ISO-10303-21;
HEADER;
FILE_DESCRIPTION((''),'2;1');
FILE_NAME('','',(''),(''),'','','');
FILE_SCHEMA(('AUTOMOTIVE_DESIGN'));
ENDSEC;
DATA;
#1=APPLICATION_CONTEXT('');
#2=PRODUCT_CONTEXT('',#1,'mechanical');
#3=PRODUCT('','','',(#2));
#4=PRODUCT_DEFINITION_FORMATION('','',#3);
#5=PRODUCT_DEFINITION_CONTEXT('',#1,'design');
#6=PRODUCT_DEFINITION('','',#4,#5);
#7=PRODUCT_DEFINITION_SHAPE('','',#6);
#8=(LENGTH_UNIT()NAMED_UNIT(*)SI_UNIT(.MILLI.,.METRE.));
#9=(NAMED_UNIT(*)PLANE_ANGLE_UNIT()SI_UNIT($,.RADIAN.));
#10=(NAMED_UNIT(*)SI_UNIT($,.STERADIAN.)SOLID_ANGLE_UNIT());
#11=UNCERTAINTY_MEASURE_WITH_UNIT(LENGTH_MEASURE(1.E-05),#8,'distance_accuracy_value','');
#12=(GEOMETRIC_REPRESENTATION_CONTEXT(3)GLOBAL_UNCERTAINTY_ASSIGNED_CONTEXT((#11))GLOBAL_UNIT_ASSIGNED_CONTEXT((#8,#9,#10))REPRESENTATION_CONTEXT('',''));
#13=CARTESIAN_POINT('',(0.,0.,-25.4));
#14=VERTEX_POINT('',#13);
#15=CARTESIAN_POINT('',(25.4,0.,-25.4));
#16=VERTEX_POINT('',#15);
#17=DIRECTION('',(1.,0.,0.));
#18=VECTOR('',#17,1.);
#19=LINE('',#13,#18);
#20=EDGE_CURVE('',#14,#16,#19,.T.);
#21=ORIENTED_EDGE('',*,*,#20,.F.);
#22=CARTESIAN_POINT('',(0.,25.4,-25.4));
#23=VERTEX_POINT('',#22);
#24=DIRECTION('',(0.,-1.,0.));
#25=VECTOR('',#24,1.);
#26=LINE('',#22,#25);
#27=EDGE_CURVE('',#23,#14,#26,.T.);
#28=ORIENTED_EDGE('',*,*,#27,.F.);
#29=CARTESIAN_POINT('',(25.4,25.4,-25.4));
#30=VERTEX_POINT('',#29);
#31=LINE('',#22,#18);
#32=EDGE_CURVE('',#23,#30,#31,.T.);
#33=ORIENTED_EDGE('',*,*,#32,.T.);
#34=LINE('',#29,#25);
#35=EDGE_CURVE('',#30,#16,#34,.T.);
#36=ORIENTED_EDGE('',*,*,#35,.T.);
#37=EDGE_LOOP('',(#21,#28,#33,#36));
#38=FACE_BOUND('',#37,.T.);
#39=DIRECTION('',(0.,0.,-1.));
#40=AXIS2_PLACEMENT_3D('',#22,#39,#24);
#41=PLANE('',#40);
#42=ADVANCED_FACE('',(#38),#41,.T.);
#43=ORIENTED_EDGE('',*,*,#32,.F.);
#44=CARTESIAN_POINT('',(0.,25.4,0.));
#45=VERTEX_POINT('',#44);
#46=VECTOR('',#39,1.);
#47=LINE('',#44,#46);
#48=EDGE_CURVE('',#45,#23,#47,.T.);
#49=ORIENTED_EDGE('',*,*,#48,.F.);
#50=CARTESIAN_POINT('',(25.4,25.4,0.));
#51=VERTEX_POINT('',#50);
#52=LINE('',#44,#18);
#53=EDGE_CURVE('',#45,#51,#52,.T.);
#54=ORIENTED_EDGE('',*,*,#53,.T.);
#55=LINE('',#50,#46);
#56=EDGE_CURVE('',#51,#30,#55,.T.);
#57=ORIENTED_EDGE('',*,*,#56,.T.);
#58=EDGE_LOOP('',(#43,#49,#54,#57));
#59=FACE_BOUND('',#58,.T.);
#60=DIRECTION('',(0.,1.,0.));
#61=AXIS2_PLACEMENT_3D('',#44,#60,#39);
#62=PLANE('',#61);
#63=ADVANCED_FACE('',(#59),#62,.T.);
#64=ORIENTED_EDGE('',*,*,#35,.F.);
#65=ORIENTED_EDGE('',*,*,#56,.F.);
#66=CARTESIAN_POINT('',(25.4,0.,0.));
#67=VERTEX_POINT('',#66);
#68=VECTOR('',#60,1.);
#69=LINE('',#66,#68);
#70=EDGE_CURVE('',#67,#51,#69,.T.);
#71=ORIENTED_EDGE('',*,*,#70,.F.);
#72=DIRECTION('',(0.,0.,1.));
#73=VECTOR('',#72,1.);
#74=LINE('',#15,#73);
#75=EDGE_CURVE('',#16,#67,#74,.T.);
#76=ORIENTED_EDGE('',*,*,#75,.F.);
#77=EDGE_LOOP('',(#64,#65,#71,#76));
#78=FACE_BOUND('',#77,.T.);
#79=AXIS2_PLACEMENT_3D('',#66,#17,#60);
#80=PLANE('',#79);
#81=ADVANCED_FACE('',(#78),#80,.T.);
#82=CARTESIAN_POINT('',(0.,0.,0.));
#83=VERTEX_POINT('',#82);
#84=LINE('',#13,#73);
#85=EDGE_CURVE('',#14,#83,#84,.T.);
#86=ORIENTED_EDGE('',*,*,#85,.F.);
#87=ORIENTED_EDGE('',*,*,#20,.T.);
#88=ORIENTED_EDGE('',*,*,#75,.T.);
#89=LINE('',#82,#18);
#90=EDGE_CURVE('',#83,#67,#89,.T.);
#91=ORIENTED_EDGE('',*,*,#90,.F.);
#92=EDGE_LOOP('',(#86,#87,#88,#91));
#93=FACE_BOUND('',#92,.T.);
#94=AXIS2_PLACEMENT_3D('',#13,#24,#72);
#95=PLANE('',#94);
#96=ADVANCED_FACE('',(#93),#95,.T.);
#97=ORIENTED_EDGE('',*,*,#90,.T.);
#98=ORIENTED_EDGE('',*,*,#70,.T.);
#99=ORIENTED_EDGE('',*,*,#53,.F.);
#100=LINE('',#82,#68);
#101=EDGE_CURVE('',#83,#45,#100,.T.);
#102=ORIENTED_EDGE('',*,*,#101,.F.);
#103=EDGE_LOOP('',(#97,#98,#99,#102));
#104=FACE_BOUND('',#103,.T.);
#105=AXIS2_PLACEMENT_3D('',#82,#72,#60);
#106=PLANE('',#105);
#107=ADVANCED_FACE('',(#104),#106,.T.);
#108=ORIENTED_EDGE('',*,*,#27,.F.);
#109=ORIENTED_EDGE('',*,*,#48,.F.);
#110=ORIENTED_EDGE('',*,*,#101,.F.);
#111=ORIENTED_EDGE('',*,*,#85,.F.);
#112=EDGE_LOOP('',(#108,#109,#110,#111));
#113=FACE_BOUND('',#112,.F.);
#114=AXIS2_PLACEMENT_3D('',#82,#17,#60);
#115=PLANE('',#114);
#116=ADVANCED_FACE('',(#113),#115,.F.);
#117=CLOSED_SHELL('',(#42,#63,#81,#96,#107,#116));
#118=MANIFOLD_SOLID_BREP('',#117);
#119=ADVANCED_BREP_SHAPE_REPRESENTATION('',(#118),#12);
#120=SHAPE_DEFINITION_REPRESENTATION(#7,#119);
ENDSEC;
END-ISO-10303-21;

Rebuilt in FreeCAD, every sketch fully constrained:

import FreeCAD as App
import Part
import Sketcher
from FreeCAD import Vector
Q = App.Units.Quantity


def add_polygon(sketch, points):
    """Adds a closed chain of lines whose ends are joined by coincident constraints."""
    first, n = sketch.GeometryCount, len(points)
    for a, b in zip(points, points[1:] + points[:1]):
        sketch.addGeometry(Part.LineSegment(App.Vector(*a, 0), App.Vector(*b, 0)), False)
    for i in range(n):
        sketch.addConstraint(Sketcher.Constraint("Coincident", first + i, 2, first + (i + 1) % n, 1))

doc = App.newDocument("Part")
body = doc.addObject("PartDesign::Body", "Body")

sketch1 = body.newObject("Sketcher::SketchObject", "Sketch")
sketch1.AttachmentSupport = (doc.getObject("YZ_Plane"), [""])
sketch1.MapMode = "FlatFace"
add_polygon(sketch1, [(25, 0), (0, 0), (0, -25), (25, -25)])
sketch1.addConstraint([
    Sketcher.Constraint("Horizontal", 0),
    Sketcher.Constraint("Vertical", 1),
    Sketcher.Constraint("Horizontal", 2),
    Sketcher.Constraint("Vertical", 3),
    Sketcher.Constraint("Coincident", 0, 2, -1, 1),
    Sketcher.Constraint("Equal", 2, 1),
    Sketcher.Constraint("DistanceX", 0, 2, 0, 1, Q("1 in")),
])
pad1 = body.newObject("PartDesign::Pad", "Pad")
pad1.Profile = sketch1
pad1.Length = Q("1 in")

doc.recompute()
